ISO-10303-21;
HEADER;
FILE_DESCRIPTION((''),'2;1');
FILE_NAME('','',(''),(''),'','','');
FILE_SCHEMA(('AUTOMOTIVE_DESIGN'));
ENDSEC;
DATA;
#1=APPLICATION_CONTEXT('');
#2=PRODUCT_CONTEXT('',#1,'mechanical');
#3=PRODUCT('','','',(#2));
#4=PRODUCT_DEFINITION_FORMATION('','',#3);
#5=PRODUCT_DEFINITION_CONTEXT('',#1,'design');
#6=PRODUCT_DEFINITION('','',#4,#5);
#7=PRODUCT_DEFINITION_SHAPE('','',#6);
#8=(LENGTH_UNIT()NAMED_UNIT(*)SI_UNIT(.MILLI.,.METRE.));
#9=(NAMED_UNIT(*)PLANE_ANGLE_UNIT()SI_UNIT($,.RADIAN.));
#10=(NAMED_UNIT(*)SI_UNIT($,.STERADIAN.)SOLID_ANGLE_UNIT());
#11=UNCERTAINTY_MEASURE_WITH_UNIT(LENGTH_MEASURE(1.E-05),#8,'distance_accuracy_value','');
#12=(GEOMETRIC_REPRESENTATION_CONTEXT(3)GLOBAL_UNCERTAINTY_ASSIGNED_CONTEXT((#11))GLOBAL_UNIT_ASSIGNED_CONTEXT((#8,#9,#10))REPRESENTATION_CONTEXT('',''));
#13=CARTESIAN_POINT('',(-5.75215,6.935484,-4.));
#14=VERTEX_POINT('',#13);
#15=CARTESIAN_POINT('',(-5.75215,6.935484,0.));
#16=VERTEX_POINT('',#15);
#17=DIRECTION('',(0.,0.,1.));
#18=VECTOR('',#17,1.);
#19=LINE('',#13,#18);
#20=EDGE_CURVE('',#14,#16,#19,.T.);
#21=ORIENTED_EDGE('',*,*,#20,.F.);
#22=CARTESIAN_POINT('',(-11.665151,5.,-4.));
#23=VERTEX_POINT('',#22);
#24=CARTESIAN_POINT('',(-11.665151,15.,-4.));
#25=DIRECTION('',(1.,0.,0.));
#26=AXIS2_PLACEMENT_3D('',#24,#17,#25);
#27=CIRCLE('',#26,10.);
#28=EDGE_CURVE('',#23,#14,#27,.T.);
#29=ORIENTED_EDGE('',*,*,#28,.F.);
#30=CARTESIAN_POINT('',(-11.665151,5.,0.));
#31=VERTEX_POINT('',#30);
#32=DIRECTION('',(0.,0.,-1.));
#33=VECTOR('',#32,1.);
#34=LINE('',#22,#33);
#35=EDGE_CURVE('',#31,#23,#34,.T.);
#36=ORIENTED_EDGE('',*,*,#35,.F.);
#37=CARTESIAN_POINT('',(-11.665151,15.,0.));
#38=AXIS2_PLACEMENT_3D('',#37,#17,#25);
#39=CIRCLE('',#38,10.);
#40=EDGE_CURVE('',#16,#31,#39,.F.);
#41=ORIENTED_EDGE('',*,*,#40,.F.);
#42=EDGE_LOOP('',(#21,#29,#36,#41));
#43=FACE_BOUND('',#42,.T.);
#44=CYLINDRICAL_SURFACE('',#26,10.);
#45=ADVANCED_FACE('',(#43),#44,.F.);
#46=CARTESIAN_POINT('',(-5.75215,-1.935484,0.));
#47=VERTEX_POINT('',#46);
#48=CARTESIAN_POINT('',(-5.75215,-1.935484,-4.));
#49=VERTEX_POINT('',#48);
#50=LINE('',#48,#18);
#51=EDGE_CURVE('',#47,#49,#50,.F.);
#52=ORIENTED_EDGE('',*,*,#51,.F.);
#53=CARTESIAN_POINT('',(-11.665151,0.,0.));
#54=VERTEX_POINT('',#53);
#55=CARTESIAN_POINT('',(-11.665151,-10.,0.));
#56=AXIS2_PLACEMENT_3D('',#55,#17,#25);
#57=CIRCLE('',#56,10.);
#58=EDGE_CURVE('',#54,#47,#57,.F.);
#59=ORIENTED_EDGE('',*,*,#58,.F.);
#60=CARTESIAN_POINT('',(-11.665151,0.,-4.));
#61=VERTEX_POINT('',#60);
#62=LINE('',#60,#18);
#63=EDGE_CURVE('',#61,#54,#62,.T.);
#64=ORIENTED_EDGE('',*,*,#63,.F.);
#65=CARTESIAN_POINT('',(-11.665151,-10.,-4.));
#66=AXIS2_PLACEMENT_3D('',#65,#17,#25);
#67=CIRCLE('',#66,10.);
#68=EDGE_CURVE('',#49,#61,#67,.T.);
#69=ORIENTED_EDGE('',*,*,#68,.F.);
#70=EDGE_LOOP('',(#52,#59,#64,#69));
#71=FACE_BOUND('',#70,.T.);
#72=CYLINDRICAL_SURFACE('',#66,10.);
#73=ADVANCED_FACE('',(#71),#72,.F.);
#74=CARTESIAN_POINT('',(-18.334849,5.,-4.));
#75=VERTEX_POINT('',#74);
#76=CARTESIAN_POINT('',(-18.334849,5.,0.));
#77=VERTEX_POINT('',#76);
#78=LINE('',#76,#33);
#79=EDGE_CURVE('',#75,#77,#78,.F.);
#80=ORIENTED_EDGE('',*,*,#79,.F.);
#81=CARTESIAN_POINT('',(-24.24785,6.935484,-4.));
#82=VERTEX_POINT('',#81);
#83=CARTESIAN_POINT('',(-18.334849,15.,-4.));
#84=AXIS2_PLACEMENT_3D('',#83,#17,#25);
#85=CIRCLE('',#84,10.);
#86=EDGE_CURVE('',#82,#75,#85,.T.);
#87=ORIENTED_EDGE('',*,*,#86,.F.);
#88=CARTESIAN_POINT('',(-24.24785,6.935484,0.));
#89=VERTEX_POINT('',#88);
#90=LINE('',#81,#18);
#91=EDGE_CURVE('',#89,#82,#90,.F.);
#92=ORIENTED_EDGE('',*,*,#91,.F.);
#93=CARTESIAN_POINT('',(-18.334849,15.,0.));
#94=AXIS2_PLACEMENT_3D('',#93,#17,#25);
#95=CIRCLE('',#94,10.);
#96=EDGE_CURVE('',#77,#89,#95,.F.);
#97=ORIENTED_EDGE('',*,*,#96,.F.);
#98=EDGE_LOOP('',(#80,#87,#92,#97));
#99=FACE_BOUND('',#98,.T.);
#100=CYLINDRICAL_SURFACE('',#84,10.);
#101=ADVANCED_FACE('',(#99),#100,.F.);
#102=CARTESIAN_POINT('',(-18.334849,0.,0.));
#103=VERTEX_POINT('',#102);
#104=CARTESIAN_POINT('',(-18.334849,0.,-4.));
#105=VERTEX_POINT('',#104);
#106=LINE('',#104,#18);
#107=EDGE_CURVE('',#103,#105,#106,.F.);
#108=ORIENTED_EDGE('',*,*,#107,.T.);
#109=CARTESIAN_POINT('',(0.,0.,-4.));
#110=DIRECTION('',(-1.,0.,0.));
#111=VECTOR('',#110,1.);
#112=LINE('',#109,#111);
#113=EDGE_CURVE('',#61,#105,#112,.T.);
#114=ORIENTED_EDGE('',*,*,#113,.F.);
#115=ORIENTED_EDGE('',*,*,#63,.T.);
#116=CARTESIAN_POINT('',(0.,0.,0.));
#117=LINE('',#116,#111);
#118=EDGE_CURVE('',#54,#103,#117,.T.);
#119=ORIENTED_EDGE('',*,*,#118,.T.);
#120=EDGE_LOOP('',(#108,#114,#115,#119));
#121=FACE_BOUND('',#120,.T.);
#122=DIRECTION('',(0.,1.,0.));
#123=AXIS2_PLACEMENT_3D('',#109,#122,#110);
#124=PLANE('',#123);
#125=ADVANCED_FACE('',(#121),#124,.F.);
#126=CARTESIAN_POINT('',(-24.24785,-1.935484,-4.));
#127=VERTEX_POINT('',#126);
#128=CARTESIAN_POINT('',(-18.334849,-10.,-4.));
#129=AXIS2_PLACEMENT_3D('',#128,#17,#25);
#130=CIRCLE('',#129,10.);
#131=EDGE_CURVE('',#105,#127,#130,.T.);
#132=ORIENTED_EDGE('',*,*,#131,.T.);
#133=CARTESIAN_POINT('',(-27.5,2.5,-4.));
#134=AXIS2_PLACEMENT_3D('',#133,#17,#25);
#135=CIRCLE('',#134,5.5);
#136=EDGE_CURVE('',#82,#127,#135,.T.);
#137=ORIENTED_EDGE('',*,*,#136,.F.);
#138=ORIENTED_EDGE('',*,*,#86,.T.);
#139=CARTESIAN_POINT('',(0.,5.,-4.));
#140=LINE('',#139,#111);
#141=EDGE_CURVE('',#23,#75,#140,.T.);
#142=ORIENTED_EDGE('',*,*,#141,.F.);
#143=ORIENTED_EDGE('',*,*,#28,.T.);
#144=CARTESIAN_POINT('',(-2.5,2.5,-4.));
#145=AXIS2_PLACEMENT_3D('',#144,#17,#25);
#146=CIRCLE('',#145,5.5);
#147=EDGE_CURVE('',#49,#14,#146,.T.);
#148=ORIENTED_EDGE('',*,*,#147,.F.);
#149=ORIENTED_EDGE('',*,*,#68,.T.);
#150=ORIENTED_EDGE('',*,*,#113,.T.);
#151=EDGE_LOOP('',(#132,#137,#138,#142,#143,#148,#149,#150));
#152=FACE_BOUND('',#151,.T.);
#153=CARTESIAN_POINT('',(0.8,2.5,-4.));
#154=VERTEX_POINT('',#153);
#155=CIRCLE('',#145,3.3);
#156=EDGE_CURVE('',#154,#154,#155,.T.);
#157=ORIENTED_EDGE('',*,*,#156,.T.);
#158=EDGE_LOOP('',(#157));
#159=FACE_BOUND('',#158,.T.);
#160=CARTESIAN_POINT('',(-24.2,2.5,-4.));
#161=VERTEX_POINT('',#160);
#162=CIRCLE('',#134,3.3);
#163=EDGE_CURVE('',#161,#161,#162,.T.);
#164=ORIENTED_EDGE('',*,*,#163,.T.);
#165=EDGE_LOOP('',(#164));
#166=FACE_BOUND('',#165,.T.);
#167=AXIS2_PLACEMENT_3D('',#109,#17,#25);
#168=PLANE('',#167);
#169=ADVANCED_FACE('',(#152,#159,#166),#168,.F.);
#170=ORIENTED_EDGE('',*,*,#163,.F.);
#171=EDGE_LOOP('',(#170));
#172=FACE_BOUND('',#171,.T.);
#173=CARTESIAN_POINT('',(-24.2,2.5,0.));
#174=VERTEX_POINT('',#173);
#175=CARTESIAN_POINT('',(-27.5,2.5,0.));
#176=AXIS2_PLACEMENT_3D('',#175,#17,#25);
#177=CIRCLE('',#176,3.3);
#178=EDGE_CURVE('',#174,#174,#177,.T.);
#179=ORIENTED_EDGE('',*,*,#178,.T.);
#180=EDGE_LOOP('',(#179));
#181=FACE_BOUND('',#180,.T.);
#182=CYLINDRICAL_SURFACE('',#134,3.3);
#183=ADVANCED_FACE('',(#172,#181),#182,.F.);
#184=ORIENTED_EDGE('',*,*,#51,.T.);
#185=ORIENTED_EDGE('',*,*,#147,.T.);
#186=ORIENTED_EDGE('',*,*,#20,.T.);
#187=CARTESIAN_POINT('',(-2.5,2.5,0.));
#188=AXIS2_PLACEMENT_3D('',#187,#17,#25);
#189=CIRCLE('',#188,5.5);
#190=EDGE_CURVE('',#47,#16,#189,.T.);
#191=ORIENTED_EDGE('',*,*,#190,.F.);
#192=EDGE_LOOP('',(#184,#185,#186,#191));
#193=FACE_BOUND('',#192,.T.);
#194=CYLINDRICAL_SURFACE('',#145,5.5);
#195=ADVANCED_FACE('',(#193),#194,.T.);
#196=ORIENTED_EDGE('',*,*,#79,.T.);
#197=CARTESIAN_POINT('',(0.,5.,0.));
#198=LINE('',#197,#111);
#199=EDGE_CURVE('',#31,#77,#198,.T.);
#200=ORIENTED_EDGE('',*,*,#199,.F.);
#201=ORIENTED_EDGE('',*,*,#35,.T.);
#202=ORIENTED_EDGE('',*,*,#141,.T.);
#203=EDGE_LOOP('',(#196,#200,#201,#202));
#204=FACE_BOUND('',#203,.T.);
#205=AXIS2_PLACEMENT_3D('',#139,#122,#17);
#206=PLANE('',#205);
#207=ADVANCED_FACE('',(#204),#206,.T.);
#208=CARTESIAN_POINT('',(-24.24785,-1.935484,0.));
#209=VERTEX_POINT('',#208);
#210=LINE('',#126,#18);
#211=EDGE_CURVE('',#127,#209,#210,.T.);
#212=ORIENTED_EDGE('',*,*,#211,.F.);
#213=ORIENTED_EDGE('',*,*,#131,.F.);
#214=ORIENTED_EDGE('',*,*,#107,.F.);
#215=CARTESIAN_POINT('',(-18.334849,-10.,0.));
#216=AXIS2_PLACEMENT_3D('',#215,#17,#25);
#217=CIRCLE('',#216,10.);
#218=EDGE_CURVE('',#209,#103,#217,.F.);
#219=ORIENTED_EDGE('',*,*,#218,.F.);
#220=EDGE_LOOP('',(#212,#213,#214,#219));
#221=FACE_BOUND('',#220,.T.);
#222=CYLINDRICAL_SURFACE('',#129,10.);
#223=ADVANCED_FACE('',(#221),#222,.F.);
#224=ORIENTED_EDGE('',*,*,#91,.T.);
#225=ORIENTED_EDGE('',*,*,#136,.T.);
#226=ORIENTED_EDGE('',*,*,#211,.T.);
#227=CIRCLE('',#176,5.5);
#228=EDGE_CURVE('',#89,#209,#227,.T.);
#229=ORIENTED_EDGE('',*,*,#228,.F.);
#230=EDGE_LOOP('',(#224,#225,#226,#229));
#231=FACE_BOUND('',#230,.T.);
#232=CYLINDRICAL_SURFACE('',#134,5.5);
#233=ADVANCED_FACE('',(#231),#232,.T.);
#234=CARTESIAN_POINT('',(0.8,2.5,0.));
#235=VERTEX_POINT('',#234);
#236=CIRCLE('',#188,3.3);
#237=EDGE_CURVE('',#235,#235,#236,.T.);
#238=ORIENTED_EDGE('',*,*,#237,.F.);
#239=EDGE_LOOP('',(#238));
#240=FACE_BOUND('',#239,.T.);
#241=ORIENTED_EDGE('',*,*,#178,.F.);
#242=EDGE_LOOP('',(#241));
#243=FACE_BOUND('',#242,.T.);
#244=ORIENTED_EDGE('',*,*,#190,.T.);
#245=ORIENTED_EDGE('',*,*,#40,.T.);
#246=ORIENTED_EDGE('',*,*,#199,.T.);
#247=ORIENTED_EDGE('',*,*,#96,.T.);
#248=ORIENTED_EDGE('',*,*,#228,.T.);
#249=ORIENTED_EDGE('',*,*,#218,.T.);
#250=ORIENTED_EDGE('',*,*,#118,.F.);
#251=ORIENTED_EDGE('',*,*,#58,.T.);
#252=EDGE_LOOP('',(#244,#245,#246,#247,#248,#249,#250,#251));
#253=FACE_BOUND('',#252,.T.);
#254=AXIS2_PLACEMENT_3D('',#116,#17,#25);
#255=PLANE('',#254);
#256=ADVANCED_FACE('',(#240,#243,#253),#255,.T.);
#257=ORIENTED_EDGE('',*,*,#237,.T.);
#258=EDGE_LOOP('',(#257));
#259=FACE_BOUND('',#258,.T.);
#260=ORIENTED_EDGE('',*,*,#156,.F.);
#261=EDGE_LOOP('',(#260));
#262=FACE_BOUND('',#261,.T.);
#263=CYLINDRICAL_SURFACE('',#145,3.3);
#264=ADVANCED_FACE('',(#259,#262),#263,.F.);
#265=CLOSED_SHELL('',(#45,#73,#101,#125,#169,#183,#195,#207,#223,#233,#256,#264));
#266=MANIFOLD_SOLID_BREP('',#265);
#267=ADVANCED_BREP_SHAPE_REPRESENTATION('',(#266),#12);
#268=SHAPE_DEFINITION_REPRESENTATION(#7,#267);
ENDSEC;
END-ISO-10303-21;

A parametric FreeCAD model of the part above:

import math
import FreeCAD as App
import Part
import Sketcher
from FreeCAD import Vector


def edges_at(feature, points):
    """Names of the edges that pass closest to the given points."""
    edges = feature.Shape.Edges
    near = lambda p: min(range(len(edges)), key=lambda i: edges[i].distToShape(Part.Vertex(*p))[0])
    return sorted({f"Edge{near(p) + 1}" for p in points})

doc = App.newDocument("Part")
body = doc.addObject("PartDesign::Body", "Body")

# Sketch on XY plane
sketch1 = doc.addObject("Sketcher::SketchObject", "Sketch")
body.addObject(sketch1)
sketch1.AttachmentSupport = (doc.XY_Plane, [""])
sketch1.MapMode = "FlatFace"
sketch1.addGeometry([
    Part.ArcOfCircle(Part.Circle(Vector(-2.5, 2.5, 0), Vector(0, 0, 1), 5.5), math.radians(-153), math.radians(0)),  # 0
    Part.ArcOfCircle(Part.Circle(Vector(-2.5, 2.5, 0), Vector(0, 0, 1), 5.5), math.radians(0), math.radians(153)),  # 1
    Part.LineSegment(Vector(-7.4, 5, 0), Vector(-22.6, 5, 0)),  # 2
    Part.ArcOfCircle(Part.Circle(Vector(-27.5, 2.5, 0), Vector(0, 0, 1), 5.5), math.radians(27), math.radians(333)),  # 3
    Part.LineSegment(Vector(-22.6, 0, 0), Vector(-7.4, 0, 0)),  # 4
    Part.ArcOfCircle(Part.Circle(Vector(-2.5, 2.5, 0), Vector(0, 0, 1), 3.3), math.radians(0), math.radians(41)),  # 5
    Part.ArcOfCircle(Part.Circle(Vector(-2.5, 2.5, 0), Vector(0, 0, 1), 3.3), math.radians(-41), math.radians(0)),  # 6
    Part.ArcOfCircle(Part.Circle(Vector(-2.5, 2.5, 0), Vector(0, 0, 1), 3.3), math.radians(-49.25), math.radians(-40.75)),  # 7
    Part.ArcOfCircle(Part.Circle(Vector(-2.5, 2.5, 0), Vector(0, 0, 1), 3.3), math.radians(-131), math.radians(-49)),  # 8
    Part.ArcOfCircle(Part.Circle(Vector(-2.5, 2.5, 0), Vector(0, 0, 1), 3.3), math.radians(131), math.radians(229)),  # 9
    Part.ArcOfCircle(Part.Circle(Vector(-2.5, 2.5, 0), Vector(0, 0, 1), 3.3), math.radians(49), math.radians(131)),  # 10
    Part.ArcOfCircle(Part.Circle(Vector(-2.5, 2.5, 0), Vector(0, 0, 1), 3.3), math.radians(40.75), math.radians(49.25)),  # 11
    Part.ArcOfCircle(Part.Circle(Vector(-27.5, 2.5, 0), Vector(0, 0, 1), 3.3), math.radians(0), math.radians(49)),  # 12
    Part.ArcOfCircle(Part.Circle(Vector(-27.5, 2.5, 0), Vector(0, 0, 1), 3.3), math.radians(-49), math.radians(0)),  # 13
    Part.ArcOfCircle(Part.Circle(Vector(-27.5, 2.5, 0), Vector(0, 0, 1), 3.3), math.radians(-131), math.radians(-49)),  # 14
    Part.ArcOfCircle(Part.Circle(Vector(-27.5, 2.5, 0), Vector(0, 0, 1), 3.3), math.radians(-139.25), math.radians(-130.75)),  # 15
    Part.ArcOfCircle(Part.Circle(Vector(-27.5, 2.5, 0), Vector(0, 0, 1), 3.3), math.radians(139), math.radians(221)),  # 16
    Part.ArcOfCircle(Part.Circle(Vector(-27.5, 2.5, 0), Vector(0, 0, 1), 3.3), math.radians(130.75), math.radians(139.25)),  # 17
    Part.ArcOfCircle(Part.Circle(Vector(-27.5, 2.5, 0), Vector(0, 0, 1), 3.3), math.radians(49), math.radians(131)),  # 18
], False)
sketch1.addConstraint([
    Sketcher.Constraint("Tangent", 0, 2, 1, 1),
    Sketcher.Constraint("Coincident", 1, 2, 2, 1),
    Sketcher.Constraint("Coincident", 2, 2, 3, 1),
    Sketcher.Constraint("Coincident", 3, 2, 4, 1),
    Sketcher.Constraint("Coincident", 4, 2, 0, 1),
    Sketcher.Constraint("Tangent", 5, 1, 6, 2),
    Sketcher.Constraint("Tangent", 6, 1, 7, 2),
    Sketcher.Constraint("Tangent", 7, 1, 8, 2),
    Sketcher.Constraint("Tangent", 8, 1, 9, 2),
    Sketcher.Constraint("Tangent", 9, 1, 10, 2),
    Sketcher.Constraint("Tangent", 10, 1, 11, 2),
    Sketcher.Constraint("Tangent", 11, 1, 5, 2),
    Sketcher.Constraint("Tangent", 12, 1, 13, 2),
    Sketcher.Constraint("Tangent", 13, 1, 14, 2),
    Sketcher.Constraint("Tangent", 14, 1, 15, 2),
    Sketcher.Constraint("Tangent", 15, 1, 16, 2),
    Sketcher.Constraint("Tangent", 16, 1, 17, 2),
    Sketcher.Constraint("Tangent", 17, 1, 18, 2),
    Sketcher.Constraint("Tangent", 18, 1, 12, 2),
    Sketcher.Constraint("Horizontal", 2),
    Sketcher.Constraint("Horizontal", 4),
    Sketcher.Constraint("Coincident", 5, 3, 0, 3),
    Sketcher.Constraint("Coincident", 7, 3, 0, 3),
    Sketcher.Constraint("Coincident", 9, 3, 0, 3),
    Sketcher.Constraint("Coincident", 12, 3, 3, 3),
    Sketcher.Constraint("Coincident", 14, 3, 3, 3),
    Sketcher.Constraint("Coincident", 16, 3, 3, 3),
    Sketcher.Constraint("Equal", 0, 1),
    Sketcher.Constraint("Equal", 1, 3),
    Sketcher.Constraint("Equal", 11, 12),
    Sketcher.Constraint("PointOnObject", 3, 2, -1),
    Sketcher.Constraint("PointOnObject", 6, 1, -2),
    Sketcher.Constraint("PointOnObject", 7, 1, -1),
    Sketcher.Constraint("PointOnObject", 8, 1, -1),
    Sketcher.Constraint("PointOnObject", 11, 1, -2),
    Sketcher.Constraint("PointOnObject", 13, 1, -1),
    Sketcher.Constraint("PointOnObject", 14, 1, -1),
    Sketcher.Constraint("Horizontal", 1, 3, 3, 3),
    Sketcher.Constraint("Horizontal", 18, 3, 0, 2),
    Sketcher.Constraint("Horizontal", 0, 2, 5, 1),
    Sketcher.Constraint("Horizontal", 2, 2, 9, 1),
    Sketcher.Constraint("Horizontal", 9, 1, 10, 1),
    Sketcher.Constraint("Horizontal", 5, 1, 12, 1),
    Sketcher.Constraint("Horizontal", 6, 1, 15, 1),
    Sketcher.Constraint("Horizontal", 11, 1, 16, 1),
    Sketcher.Constraint("Horizontal", 10, 1, 17, 1),
    Sketcher.Constraint("Horizontal", 17, 1, 18, 1),
    Sketcher.Constraint("Vertical", 2, 2, 3, 2),
    Sketcher.Constraint("Radius", 0, 5.5),
    Sketcher.Constraint("Radius", 5, 3.3),
    Sketcher.Constraint("DistanceX", -1, 1, 0, 2, 3.0),
    Sketcher.Constraint("DistanceY", -1, 1, 1, 2, 5.0),
    Sketcher.Constraint("DistanceX", 15, 1, -1, 1, 30.0),
])
pad1 = doc.addObject("PartDesign::Pad", "Pad")
body.addObject(pad1)
pad1.Profile = sketch1
pad1.Length = 4
pad1.Reversed = True
doc.recompute()

fillet = doc.addObject("PartDesign::Fillet", "Fillet")
body.addObject(fillet)
fillet.Base = (pad1, edges_at(pad1, [
    (-7.399, 0, -2),
    (-22.601, 0, -2),
    (-22.601, 5, -2),
    (-7.399, 5, -2),
]))
fillet.Radius = 10

doc.recompute()
